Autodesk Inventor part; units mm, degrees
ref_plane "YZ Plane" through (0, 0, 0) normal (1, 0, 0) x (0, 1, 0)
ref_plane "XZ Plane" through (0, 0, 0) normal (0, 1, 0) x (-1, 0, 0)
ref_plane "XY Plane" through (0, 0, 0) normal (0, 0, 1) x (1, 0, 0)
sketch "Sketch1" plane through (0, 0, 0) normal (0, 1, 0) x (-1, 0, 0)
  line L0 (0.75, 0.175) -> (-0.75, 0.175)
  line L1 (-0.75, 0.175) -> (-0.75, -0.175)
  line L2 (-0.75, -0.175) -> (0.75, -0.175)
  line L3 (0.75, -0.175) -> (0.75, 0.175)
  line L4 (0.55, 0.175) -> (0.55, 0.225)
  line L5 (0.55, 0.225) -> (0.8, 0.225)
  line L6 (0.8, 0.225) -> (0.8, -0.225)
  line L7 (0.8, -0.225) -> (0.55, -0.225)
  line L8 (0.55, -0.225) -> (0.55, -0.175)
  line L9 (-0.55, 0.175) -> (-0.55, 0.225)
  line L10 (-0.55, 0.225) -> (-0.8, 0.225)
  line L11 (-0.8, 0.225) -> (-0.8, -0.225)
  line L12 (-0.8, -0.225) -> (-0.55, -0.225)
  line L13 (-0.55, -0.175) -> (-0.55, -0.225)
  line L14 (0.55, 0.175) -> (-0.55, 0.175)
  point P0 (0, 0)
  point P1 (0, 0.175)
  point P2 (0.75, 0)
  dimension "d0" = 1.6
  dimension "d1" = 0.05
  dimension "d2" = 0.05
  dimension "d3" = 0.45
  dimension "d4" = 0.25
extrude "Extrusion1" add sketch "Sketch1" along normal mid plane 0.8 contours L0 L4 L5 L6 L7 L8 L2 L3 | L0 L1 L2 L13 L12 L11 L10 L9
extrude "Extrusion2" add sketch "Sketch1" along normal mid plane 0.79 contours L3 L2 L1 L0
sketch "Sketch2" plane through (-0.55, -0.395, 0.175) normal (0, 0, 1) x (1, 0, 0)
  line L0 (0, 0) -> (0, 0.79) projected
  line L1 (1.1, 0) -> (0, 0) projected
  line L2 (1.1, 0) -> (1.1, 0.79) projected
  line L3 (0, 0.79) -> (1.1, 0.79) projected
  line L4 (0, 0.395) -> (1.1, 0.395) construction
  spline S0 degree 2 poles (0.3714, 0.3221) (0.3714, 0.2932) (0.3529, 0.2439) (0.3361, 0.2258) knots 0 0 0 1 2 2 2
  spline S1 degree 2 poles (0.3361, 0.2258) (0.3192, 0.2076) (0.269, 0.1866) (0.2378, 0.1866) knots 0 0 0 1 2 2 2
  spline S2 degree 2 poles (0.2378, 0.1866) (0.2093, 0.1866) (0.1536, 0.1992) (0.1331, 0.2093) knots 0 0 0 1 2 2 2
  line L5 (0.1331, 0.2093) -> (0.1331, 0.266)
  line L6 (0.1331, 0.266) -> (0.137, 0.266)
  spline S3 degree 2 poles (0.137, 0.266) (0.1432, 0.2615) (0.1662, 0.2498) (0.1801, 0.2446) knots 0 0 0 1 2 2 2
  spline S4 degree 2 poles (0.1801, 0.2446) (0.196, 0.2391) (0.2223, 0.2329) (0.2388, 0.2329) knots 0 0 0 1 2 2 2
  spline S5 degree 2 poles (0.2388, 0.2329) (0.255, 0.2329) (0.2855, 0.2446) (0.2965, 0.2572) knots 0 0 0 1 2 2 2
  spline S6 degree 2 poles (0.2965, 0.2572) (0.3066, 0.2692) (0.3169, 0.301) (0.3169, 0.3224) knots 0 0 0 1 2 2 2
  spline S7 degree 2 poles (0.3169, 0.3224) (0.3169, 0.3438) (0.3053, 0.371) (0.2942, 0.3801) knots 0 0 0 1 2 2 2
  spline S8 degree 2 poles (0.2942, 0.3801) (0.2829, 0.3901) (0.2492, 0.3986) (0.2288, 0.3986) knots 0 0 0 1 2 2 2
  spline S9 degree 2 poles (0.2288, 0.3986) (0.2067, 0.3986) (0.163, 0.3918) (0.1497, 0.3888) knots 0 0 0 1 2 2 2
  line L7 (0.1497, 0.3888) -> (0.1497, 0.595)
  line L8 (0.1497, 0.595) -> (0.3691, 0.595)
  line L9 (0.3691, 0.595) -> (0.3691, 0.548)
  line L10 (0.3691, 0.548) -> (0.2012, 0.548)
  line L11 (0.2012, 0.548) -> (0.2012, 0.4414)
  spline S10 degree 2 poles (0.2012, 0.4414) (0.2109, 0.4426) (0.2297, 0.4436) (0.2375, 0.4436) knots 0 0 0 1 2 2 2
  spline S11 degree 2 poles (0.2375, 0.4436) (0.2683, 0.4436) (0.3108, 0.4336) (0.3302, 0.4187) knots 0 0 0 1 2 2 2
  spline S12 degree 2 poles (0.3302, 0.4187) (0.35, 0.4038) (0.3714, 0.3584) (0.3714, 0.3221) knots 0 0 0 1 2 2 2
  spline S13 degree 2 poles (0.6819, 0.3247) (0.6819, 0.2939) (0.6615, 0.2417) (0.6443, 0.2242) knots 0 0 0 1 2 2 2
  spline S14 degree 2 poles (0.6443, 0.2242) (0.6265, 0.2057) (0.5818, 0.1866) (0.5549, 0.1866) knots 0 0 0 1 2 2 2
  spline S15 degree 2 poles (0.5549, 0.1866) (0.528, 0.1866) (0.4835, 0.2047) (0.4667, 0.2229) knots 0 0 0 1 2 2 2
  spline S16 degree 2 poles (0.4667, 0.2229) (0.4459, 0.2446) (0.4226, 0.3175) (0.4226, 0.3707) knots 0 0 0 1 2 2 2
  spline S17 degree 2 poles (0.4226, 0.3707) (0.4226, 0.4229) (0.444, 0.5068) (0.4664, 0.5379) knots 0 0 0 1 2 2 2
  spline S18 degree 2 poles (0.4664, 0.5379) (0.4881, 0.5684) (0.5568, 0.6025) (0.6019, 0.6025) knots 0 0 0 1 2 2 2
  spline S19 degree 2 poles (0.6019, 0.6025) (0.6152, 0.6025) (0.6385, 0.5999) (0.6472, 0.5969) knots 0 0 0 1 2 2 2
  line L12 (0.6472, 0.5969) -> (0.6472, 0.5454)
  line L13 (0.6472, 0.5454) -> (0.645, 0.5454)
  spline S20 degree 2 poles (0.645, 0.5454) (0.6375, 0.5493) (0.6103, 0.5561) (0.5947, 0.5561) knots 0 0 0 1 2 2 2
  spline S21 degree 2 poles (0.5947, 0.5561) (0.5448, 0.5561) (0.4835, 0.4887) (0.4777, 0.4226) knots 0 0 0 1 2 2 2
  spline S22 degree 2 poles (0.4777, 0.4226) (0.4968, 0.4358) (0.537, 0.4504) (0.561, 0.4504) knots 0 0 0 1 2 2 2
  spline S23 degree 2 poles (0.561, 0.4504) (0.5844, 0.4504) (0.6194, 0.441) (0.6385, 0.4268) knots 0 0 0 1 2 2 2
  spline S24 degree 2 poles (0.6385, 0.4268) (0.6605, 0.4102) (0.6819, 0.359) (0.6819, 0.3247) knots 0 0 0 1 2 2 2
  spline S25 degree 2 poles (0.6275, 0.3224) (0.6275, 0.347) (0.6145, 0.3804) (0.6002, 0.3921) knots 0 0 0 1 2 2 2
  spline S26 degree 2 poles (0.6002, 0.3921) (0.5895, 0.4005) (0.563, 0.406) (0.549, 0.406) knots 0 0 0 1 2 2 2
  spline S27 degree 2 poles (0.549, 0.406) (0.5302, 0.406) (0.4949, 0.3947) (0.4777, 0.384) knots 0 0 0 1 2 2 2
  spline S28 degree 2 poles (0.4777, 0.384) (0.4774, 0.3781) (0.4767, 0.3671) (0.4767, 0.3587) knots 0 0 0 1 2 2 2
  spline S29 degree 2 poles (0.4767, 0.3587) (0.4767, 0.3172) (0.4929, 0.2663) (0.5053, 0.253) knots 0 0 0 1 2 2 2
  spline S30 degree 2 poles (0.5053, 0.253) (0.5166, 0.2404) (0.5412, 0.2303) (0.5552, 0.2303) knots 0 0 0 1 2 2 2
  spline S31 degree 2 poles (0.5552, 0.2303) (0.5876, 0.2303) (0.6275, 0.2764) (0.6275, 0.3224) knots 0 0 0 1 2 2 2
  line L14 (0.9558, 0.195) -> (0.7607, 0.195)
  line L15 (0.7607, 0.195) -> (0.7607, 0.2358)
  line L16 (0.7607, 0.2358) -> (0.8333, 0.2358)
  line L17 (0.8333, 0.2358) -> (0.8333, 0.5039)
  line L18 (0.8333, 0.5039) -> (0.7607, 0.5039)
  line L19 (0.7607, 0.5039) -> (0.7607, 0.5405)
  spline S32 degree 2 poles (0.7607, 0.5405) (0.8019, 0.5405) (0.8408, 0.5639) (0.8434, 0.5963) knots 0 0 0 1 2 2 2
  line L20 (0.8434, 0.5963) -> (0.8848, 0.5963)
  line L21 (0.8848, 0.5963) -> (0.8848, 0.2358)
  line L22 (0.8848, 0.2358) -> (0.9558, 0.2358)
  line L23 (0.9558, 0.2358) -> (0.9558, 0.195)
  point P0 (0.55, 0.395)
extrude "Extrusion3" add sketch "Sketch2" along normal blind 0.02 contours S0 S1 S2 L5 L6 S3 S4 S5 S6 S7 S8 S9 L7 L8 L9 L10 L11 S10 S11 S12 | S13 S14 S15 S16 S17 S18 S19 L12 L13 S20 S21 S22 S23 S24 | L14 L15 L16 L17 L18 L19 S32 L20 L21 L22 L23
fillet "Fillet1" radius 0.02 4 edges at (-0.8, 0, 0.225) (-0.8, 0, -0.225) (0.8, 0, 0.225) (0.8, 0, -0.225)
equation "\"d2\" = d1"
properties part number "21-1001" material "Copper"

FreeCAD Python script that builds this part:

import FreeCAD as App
import Part
import Sketcher
from FreeCAD import Vector
Q = App.Units.Quantity


def edges_at(feature, points):
    """Names of the edges that pass closest to the given points."""
    edges = feature.Shape.Edges
    near = lambda p: min(range(len(edges)), key=lambda i: edges[i].distToShape(Part.Vertex(*p))[0])
    return sorted({f"Edge{near(p) + 1}" for p in points})

doc = App.newDocument("Part")
body = doc.addObject("PartDesign::Body", "Body")
body.AllowCompound = True

sketch1 = body.newObject("Sketcher::SketchObject", "Sketch")
sketch1.AttachmentSupport = (doc.getObject("XZ_Plane"), [""])
sketch1.MapMode = "FlatFace"
sketch1.addGeometry([
    Part.LineSegment(Vector(-0.55, 0.175, 0), Vector(-0.75, 0.175, 0)),
    Part.LineSegment(Vector(-0.75, 0.175, 0), Vector(-0.75, -0.175, 0)),
    Part.LineSegment(Vector(-0.75, -0.175, 0), Vector(-0.55, -0.175, 0)),
    Part.LineSegment(Vector(-0.55, -0.175, 0), Vector(-0.55, -0.225, 0)),
    Part.LineSegment(Vector(-0.55, -0.225, 0), Vector(-0.8, -0.225, 0)),
    Part.LineSegment(Vector(-0.8, -0.225, 0), Vector(-0.8, 0.225, 0)),
    Part.LineSegment(Vector(-0.8, 0.225, 0), Vector(-0.55, 0.225, 0)),
    Part.LineSegment(Vector(-0.55, 0.225, 0), Vector(-0.55, 0.175, 0)),
    Part.LineSegment(Vector(0.75, 0.175, 0), Vector(0.55, 0.175, 0)),
    Part.LineSegment(Vector(0.55, 0.175, 0), Vector(0.55, 0.225, 0)),
    Part.LineSegment(Vector(0.55, 0.225, 0), Vector(0.8, 0.225, 0)),
    Part.LineSegment(Vector(0.8, 0.225, 0), Vector(0.8, -0.225, 0)),
    Part.LineSegment(Vector(0.8, -0.225, 0), Vector(0.55, -0.225, 0)),
    Part.LineSegment(Vector(0.55, -0.225, 0), Vector(0.55, -0.175, 0)),
    Part.LineSegment(Vector(0.55, -0.175, 0), Vector(0.75, -0.175, 0)),
    Part.LineSegment(Vector(0.75, -0.175, 0), Vector(0.75, 0.175, 0)),
], False)
sketch1.addConstraint([
    Sketcher.Constraint("Coincident", 0, 2, 1, 1),
    Sketcher.Constraint("Coincident", 1, 2, 2, 1),
    Sketcher.Constraint("Coincident", 2, 2, 3, 1),
    Sketcher.Constraint("Coincident", 3, 2, 4, 1),
    Sketcher.Constraint("Coincident", 4, 2, 5, 1),
    Sketcher.Constraint("Coincident", 5, 2, 6, 1),
    Sketcher.Constraint("Coincident", 6, 2, 7, 1),
    Sketcher.Constraint("Coincident", 7, 2, 0, 1),
    Sketcher.Constraint("Coincident", 8, 2, 9, 1),
    Sketcher.Constraint("Coincident", 9, 2, 10, 1),
    Sketcher.Constraint("Coincident", 10, 2, 11, 1),
    Sketcher.Constraint("Coincident", 11, 2, 12, 1),
    Sketcher.Constraint("Coincident", 12, 2, 13, 1),
    Sketcher.Constraint("Coincident", 13, 2, 14, 1),
    Sketcher.Constraint("Coincident", 14, 2, 15, 1),
    Sketcher.Constraint("Coincident", 15, 2, 8, 1),
    Sketcher.Constraint("Horizontal", 0),
    Sketcher.Constraint("Vertical", 1),
    Sketcher.Constraint("Horizontal", 2),
    Sketcher.Constraint("Vertical", 3),
    Sketcher.Constraint("Horizontal", 4),
    Sketcher.Constraint("Vertical", 5),
    Sketcher.Constraint("Horizontal", 6),
    Sketcher.Constraint("Vertical", 7),
    Sketcher.Constraint("Horizontal", 8),
    Sketcher.Constraint("Vertical", 9),
    Sketcher.Constraint("Horizontal", 10),
    Sketcher.Constraint("Vertical", 11),
    Sketcher.Constraint("Horizontal", 12),
    Sketcher.Constraint("Vertical", 13),
    Sketcher.Constraint("Horizontal", 14),
    Sketcher.Constraint("Vertical", 15),
    Sketcher.Constraint("Symmetric", 2, 2, 8, 2, -1, 1),
    Sketcher.Constraint("Symmetric", 4, 2, 10, 2, -1, 1),
    Sketcher.Constraint("Symmetric", 6, 2, 12, 2, -1, 1),
    Sketcher.Constraint("Symmetric", 0, 2, 14, 2, -1, 1),
    Sketcher.Constraint("Symmetric", 7, 2, 8, 2, -2),
    Sketcher.Constraint("Horizontal", 6, 2, 9, 2),
    Sketcher.Constraint("DistanceX", 4, 2, 4, 1, Q("0.25 mm")),
    Sketcher.Constraint("DistanceY", 3, 2, 3, 1, Q("0.05 mm")),
    Sketcher.Constraint("DistanceY", 5, 1, 5, 2, Q("0.45 mm")),
    Sketcher.Constraint("DistanceX", 4, 2, 1, 2, Q("0.05 mm")),
    Sketcher.Constraint("DistanceX", 4, 2, -1, 1, Q("0.8 mm")),
])
pad1 = body.newObject("PartDesign::Pad", "Pad")
pad1.Profile = sketch1
pad1.Length = 0.8
pad1.Midplane = True

sketch2 = body.newObject("Sketcher::SketchObject", "Sketch001")
sketch2.AttachmentSupport = (doc.getObject("XZ_Plane"), [""])
sketch2.MapMode = "FlatFace"
sketch2.addGeometry([
    Part.LineSegment(Vector(-0.75, -0.175, 0), Vector(-0.75, 0.175, 0)),
    Part.LineSegment(Vector(-0.75, 0.175, 0), Vector(0.75, 0.175, 0)),
    Part.LineSegment(Vector(0.75, 0.175, 0), Vector(0.75, -0.175, 0)),
    Part.LineSegment(Vector(0.75, -0.175, 0), Vector(-0.75, -0.175, 0)),
], False)
sketch2.addConstraint([
    Sketcher.Constraint("Coincident", 0, 2, 1, 1),
    Sketcher.Constraint("Coincident", 1, 2, 2, 1),
    Sketcher.Constraint("Coincident", 2, 2, 3, 1),
    Sketcher.Constraint("Coincident", 3, 2, 0, 1),
    Sketcher.Constraint("Vertical", 0),
    Sketcher.Constraint("Horizontal", 1),
    Sketcher.Constraint("Vertical", 2),
    Sketcher.Constraint("Horizontal", 3),
    Sketcher.Constraint("Symmetric", 0, 2, 2, 2, -1, 1),
    Sketcher.Constraint("DistanceX", 1, 1, 1, 2, Q("1.5 mm")),
    Sketcher.Constraint("DistanceY", 0, 1, 0, 2, Q("0.35 mm")),
])
pad2 = body.newObject("PartDesign::Pad", "Pad001")
pad2.Profile = sketch2
pad2.Length = 0.79
pad2.Midplane = True

sketch3 = body.newObject("Sketcher::SketchObject", "Sketch002")
sketch3.AttachmentSupport = (doc.getObject("XY_Plane"), [""])
sketch3.MapMode = "FlatFace"
sketch3.AttachmentOffset = App.Placement(Vector(0, 0, 0.175), App.Rotation())
sketch3.addGeometry([
    Part.BSplineCurve([Vector(-0.1786, -0.0729, 0), Vector(-0.1786, -0.1018, 0), Vector(-0.1971, -0.1511, 0), Vector(-0.2139, -0.1692, 0)], [3, 1, 3], [0, 1, 2], False, 2, [1, 1, 1, 1], False),
    Part.BSplineCurve([Vector(-0.2198, 0.0237, 0), Vector(-0.2, 0.0088, 0), Vector(-0.1786, -0.0366, 0), Vector(-0.1786, -0.0729, 0)], [3, 1, 3], [0, 1, 2], False, 2, [1, 1, 1, 1], False),
    Part.BSplineCurve([Vector(-0.3125, 0.0486, 0), Vector(-0.2817, 0.0486, 0), Vector(-0.2392, 0.0386, 0), Vector(-0.2198, 0.0237, 0)], [3, 1, 3], [0, 1, 2], False, 2, [1, 1, 1, 1], False),
    Part.BSplineCurve([Vector(-0.3488, 0.0464, 0), Vector(-0.3391, 0.0476, 0), Vector(-0.3203, 0.0486, 0), Vector(-0.3125, 0.0486, 0)], [3, 1, 3], [0, 1, 2], False, 2, [1, 1, 1, 1], False),
    Part.LineSegment(Vector(-0.3488, 0.0464, 0), Vector(-0.3488, 0.153, 0)),
    Part.LineSegment(Vector(-0.3488, 0.153, 0), Vector(-0.1809, 0.153, 0)),
    Part.LineSegment(Vector(-0.1809, 0.153, 0), Vector(-0.1809, 0.2, 0)),
    Part.LineSegment(Vector(-0.1809, 0.2, 0), Vector(-0.4003, 0.2, 0)),
    Part.LineSegment(Vector(-0.4003, 0.2, 0), Vector(-0.4003, -0.0062, 0)),
    Part.BSplineCurve([Vector(-0.3212, 0.0036, 0), Vector(-0.3433, 0.0036, 0), Vector(-0.387, -0.0032, 0), Vector(-0.4003, -0.0062, 0)], [3, 1, 3], [0, 1, 2], False, 2, [1, 1, 1, 1], False),
    Part.BSplineCurve([Vector(-0.2558, -0.0149, 0), Vector(-0.2671, -0.0049, 0), Vector(-0.3008, 0.0036, 0), Vector(-0.3212, 0.0036, 0)], [3, 1, 3], [0, 1, 2], False, 2, [1, 1, 1, 1], False),
    Part.BSplineCurve([Vector(-0.2331, -0.0726, 0), Vector(-0.2331, -0.0512, 0), Vector(-0.2447, -0.024, 0), Vector(-0.2558, -0.0149, 0)], [3, 1, 3], [0, 1, 2], False, 2, [1, 1, 1, 1], False),
    Part.BSplineCurve([Vector(-0.2535, -0.1378, 0), Vector(-0.2434, -0.1258, 0), Vector(-0.2331, -0.094, 0), Vector(-0.2331, -0.0726, 0)], [3, 1, 3], [0, 1, 2], False, 2, [1, 1, 1, 1], False),
    Part.BSplineCurve([Vector(-0.3112, -0.1621, 0), Vector(-0.295, -0.1621, 0), Vector(-0.2645, -0.1504, 0), Vector(-0.2535, -0.1378, 0)], [3, 1, 3], [0, 1, 2], False, 2, [1, 1, 1, 1], False),
    Part.BSplineCurve([Vector(-0.3699, -0.1504, 0), Vector(-0.354, -0.1559, 0), Vector(-0.3277, -0.1621, 0), Vector(-0.3112, -0.1621, 0)], [3, 1, 3], [0, 1, 2], False, 2, [1, 1, 1, 1], False),
    Part.BSplineCurve([Vector(-0.413, -0.129, 0), Vector(-0.4068, -0.1335, 0), Vector(-0.3838, -0.1452, 0), Vector(-0.3699, -0.1504, 0)], [3, 1, 3], [0, 1, 2], False, 2, [1, 1, 1, 1], False),
    Part.LineSegment(Vector(-0.413, -0.129, 0), Vector(-0.4169, -0.129, 0)),
    Part.LineSegment(Vector(-0.4169, -0.129, 0), Vector(-0.4169, -0.1857, 0)),
    Part.BSplineCurve([Vector(-0.3122, -0.2084, 0), Vector(-0.3407, -0.2084, 0), Vector(-0.3964, -0.1958, 0), Vector(-0.4169, -0.1857, 0)], [3, 1, 3], [0, 1, 2], False, 2, [1, 1, 1, 1], False),
    Part.BSplineCurve([Vector(-0.2139, -0.1692, 0), Vector(-0.2308, -0.1874, 0), Vector(-0.281, -0.2084, 0), Vector(-0.3122, -0.2084, 0)], [3, 1, 3], [0, 1, 2], False, 2, [1, 1, 1, 1], False),
    Part.BSplineCurve([Vector(0.1319, -0.0703, 0), Vector(0.1319, -0.1011, 0), Vector(0.1115, -0.1533, 0), Vector(0.0943, -0.1708, 0)], [3, 1, 3], [0, 1, 2], False, 2, [1, 1, 1, 1], False),
    Part.BSplineCurve([Vector(0.0885, 0.0318, 0), Vector(0.1105, 0.0152, 0), Vector(0.1319, -0.036, 0), Vector(0.1319, -0.0703, 0)], [3, 1, 3], [0, 1, 2], False, 2, [1, 1, 1, 1], False),
    Part.BSplineCurve([Vector(0.011, 0.0554, 0), Vector(0.0344, 0.0554, 0), Vector(0.0694, 0.046, 0), Vector(0.0885, 0.0318, 0)], [3, 1, 3], [0, 1, 2], False, 2, [1, 1, 1, 1], False),
    Part.BSplineCurve([Vector(-0.0723, 0.0276, 0), Vector(-0.0532, 0.0408, 0), Vector(-0.013, 0.0554, 0), Vector(0.011, 0.0554, 0)], [3, 1, 3], [0, 1, 2], False, 2, [1, 1, 1, 1], False),
    Part.BSplineCurve([Vector(0.0447, 0.1611, 0), Vector(-0.0052, 0.1611, 0), Vector(-0.0665, 0.0937, 0), Vector(-0.0723, 0.0276, 0)], [3, 1, 3], [0, 1, 2], False, 2, [1, 1, 1, 1], False),
    Part.BSplineCurve([Vector(0.095, 0.1504, 0), Vector(0.0875, 0.1543, 0), Vector(0.0603, 0.1611, 0), Vector(0.0447, 0.1611, 0)], [3, 1, 3], [0, 1, 2], False, 2, [1, 1, 1, 1], False),
    Part.LineSegment(Vector(0.095, 0.1504, 0), Vector(0.0972, 0.1504, 0)),
    Part.LineSegment(Vector(0.0972, 0.1504, 0), Vector(0.0972, 0.2019, 0)),
    Part.BSplineCurve([Vector(0.0519, 0.2075, 0), Vector(0.0652, 0.2075, 0), Vector(0.0885, 0.2049, 0), Vector(0.0972, 0.2019, 0)], [3, 1, 3], [0, 1, 2], False, 2, [1, 1, 1, 1], False),
    Part.BSplineCurve([Vector(-0.0836, 0.1429, 0), Vector(-0.0619, 0.1734, 0), Vector(0.0068, 0.2075, 0), Vector(0.0519, 0.2075, 0)], [3, 1, 3], [0, 1, 2], False, 2, [1, 1, 1, 1], False),
    Part.BSplineCurve([Vector(-0.1274, -0.0243, 0), Vector(-0.1274, 0.0279, 0), Vector(-0.106, 0.1118, 0), Vector(-0.0836, 0.1429, 0)], [3, 1, 3], [0, 1, 2], False, 2, [1, 1, 1, 1], False),
    Part.BSplineCurve([Vector(-0.0833, -0.1721, 0), Vector(-0.1041, -0.1504, 0), Vector(-0.1274, -0.0775, 0), Vector(-0.1274, -0.0243, 0)], [3, 1, 3], [0, 1, 2], False, 2, [1, 1, 1, 1], False),
    Part.BSplineCurve([Vector(0.0049, -0.2084, 0), Vector(-0.022, -0.2084, 0), Vector(-0.0665, -0.1903, 0), Vector(-0.0833, -0.1721, 0)], [3, 1, 3], [0, 1, 2], False, 2, [1, 1, 1, 1], False),
    Part.BSplineCurve([Vector(0.0943, -0.1708, 0), Vector(0.0765, -0.1893, 0), Vector(0.0318, -0.2084, 0), Vector(0.0049, -0.2084, 0)], [3, 1, 3], [0, 1, 2], False, 2, [1, 1, 1, 1], False),
    Part.BSplineCurve([Vector(0.0775, -0.0726, 0), Vector(0.0775, -0.048, 0), Vector(0.0645, -0.0146, 0), Vector(0.0502, -0.0029, 0)], [3, 1, 3], [0, 1, 2], False, 2, [1, 1, 1, 1], False),
    Part.BSplineCurve([Vector(0.0052, -0.1647, 0), Vector(0.0376, -0.1647, 0), Vector(0.0775, -0.1186, 0), Vector(0.0775, -0.0726, 0)], [3, 1, 3], [0, 1, 2], False, 2, [1, 1, 1, 1], False),
    Part.BSplineCurve([Vector(-0.0447, -0.142, 0), Vector(-0.0334, -0.1546, 0), Vector(-0.0088, -0.1647, 0), Vector(0.0052, -0.1647, 0)], [3, 1, 3], [0, 1, 2], False, 2, [1, 1, 1, 1], False),
    Part.BSplineCurve([Vector(-0.0733, -0.0363, 0), Vector(-0.0733, -0.0778, 0), Vector(-0.0571, -0.1287, 0), Vector(-0.0447, -0.142, 0)], [3, 1, 3], [0, 1, 2], False, 2, [1, 1, 1, 1], False),
    Part.BSplineCurve([Vector(-0.0723, -0.011, 0), Vector(-0.0726, -0.0169, 0), Vector(-0.0733, -0.0279, 0), Vector(-0.0733, -0.0363, 0)], [3, 1, 3], [0, 1, 2], False, 2, [1, 1, 1, 1], False),
    Part.BSplineCurve([Vector(-0.001, 0.011, 0), Vector(-0.0198, 0.011, 0), Vector(-0.0551, -0.0003, 0), Vector(-0.0723, -0.011, 0)], [3, 1, 3], [0, 1, 2], False, 2, [1, 1, 1, 1], False),
    Part.BSplineCurve([Vector(0.0502, -0.0029, 0), Vector(0.0395, 0.0055, 0), Vector(0.013, 0.011, 0), Vector(-0.001, 0.011, 0)], [3, 1, 3], [0, 1, 2], False, 2, [1, 1, 1, 1], False),
    Part.LineSegment(Vector(0.2107, -0.2, 0), Vector(0.4058, -0.2, 0)),
    Part.LineSegment(Vector(0.4058, -0.2, 0), Vector(0.4058, -0.1592, 0)),
    Part.LineSegment(Vector(0.4058, -0.1592, 0), Vector(0.3348, -0.1592, 0)),
    Part.LineSegment(Vector(0.3348, -0.1592, 0), Vector(0.3348, 0.2013, 0)),
    Part.LineSegment(Vector(0.3348, 0.2013, 0), Vector(0.2934, 0.2013, 0)),
    Part.BSplineCurve([Vector(0.2107, 0.1455, 0), Vector(0.2519, 0.1455, 0), Vector(0.2908, 0.1689, 0), Vector(0.2934, 0.2013, 0)], [3, 1, 3], [0, 1, 2], False, 2, [1, 1, 1, 1], False),
    Part.LineSegment(Vector(0.2107, 0.1455, 0), Vector(0.2107, 0.1089, 0)),
    Part.LineSegment(Vector(0.2107, 0.1089, 0), Vector(0.2833, 0.1089, 0)),
    Part.LineSegment(Vector(0.2833, 0.1089, 0), Vector(0.2833, -0.1592, 0)),
    Part.LineSegment(Vector(0.2833, -0.1592, 0), Vector(0.2107, -0.1592, 0)),
    Part.LineSegment(Vector(0.2107, -0.1592, 0), Vector(0.2107, -0.2, 0)),
], False)
sketch3.addConstraint([
    Sketcher.Constraint("Block", 0),
    Sketcher.Constraint("Block", 1),
    Sketcher.Constraint("Block", 2),
    Sketcher.Constraint("Block", 3),
    Sketcher.Constraint("Block", 9),
    Sketcher.Constraint("Block", 10),
    Sketcher.Constraint("Block", 11),
    Sketcher.Constraint("Block", 12),
    Sketcher.Constraint("Block", 13),
    Sketcher.Constraint("Block", 14),
    Sketcher.Constraint("Block", 15),
    Sketcher.Constraint("Block", 18),
    Sketcher.Constraint("Block", 19),
    Sketcher.Constraint("Block", 20),
    Sketcher.Constraint("Block", 21),
    Sketcher.Constraint("Block", 22),
    Sketcher.Constraint("Block", 23),
    Sketcher.Constraint("Block", 24),
    Sketcher.Constraint("Block", 25),
    Sketcher.Constraint("Block", 28),
    Sketcher.Constraint("Block", 29),
    Sketcher.Constraint("Block", 30),
    Sketcher.Constraint("Block", 31),
    Sketcher.Constraint("Block", 32),
    Sketcher.Constraint("Block", 33),
    Sketcher.Constraint("Block", 34),
    Sketcher.Constraint("Block", 35),
    Sketcher.Constraint("Block", 36),
    Sketcher.Constraint("Block", 37),
    Sketcher.Constraint("Block", 38),
    Sketcher.Constraint("Block", 39),
    Sketcher.Constraint("Block", 40),
    Sketcher.Constraint("Block", 46),
    Sketcher.Constraint("Coincident", 3, 1, 4, 1),
    Sketcher.Constraint("Coincident", 4, 2, 5, 1),
    Sketcher.Constraint("Coincident", 5, 2, 6, 1),
    Sketcher.Constraint("Coincident", 6, 2, 7, 1),
    Sketcher.Constraint("Coincident", 7, 2, 8, 1),
    Sketcher.Constraint("Coincident", 8, 2, 9, 2),
    Sketcher.Constraint("Coincident", 15, 1, 16, 1),
    Sketcher.Constraint("Coincident", 16, 2, 17, 1),
    Sketcher.Constraint("Coincident", 17, 2, 18, 2),
    Sketcher.Constraint("Coincident", 25, 1, 26, 1),
    Sketcher.Constraint("Coincident", 26, 2, 27, 1),
    Sketcher.Constraint("Coincident", 27, 2, 28, 2),
    Sketcher.Constraint("Coincident", 41, 2, 42, 1),
    Sketcher.Constraint("Coincident", 42, 2, 43, 1),
    Sketcher.Constraint("Coincident", 43, 2, 44, 1),
    Sketcher.Constraint("Coincident", 44, 2, 45, 1),
    Sketcher.Constraint("Coincident", 45, 2, 46, 2),
    Sketcher.Constraint("Coincident", 46, 1, 47, 1),
    Sketcher.Constraint("Coincident", 47, 2, 48, 1),
    Sketcher.Constraint("Coincident", 48, 2, 49, 1),
    Sketcher.Constraint("Coincident", 49, 2, 50, 1),
    Sketcher.Constraint("Coincident", 50, 2, 51, 1),
    Sketcher.Constraint("Coincident", 51, 2, 41, 1),
    Sketcher.Constraint("Vertical", 4),
    Sketcher.Constraint("Horizontal", 5),
    Sketcher.Constraint("Vertical", 6),
    Sketcher.Constraint("Horizontal", 7),
    Sketcher.Constraint("Vertical", 8),
    Sketcher.Constraint("Horizontal", 16),
    Sketcher.Constraint("Vertical", 17),
    Sketcher.Constraint("Horizontal", 26),
    Sketcher.Constraint("Vertical", 27),
    Sketcher.Constraint("Horizontal", 41),
    Sketcher.Constraint("Vertical", 42),
    Sketcher.Constraint("Horizontal", 43),
    Sketcher.Constraint("Vertical", 44),
    Sketcher.Constraint("Horizontal", 45),
    Sketcher.Constraint("Vertical", 47),
    Sketcher.Constraint("Horizontal", 48),
    Sketcher.Constraint("Vertical", 49),
    Sketcher.Constraint("Horizontal", 50),
    Sketcher.Constraint("Vertical", 51),
    Sketcher.Constraint("Horizontal", 43, 2, 49, 2),
    Sketcher.Constraint("Vertical", 47, 2, 50, 2),
    Sketcher.Constraint("DistanceY", -1, 1, 6, 2, Q("0.2 mm")),
    Sketcher.Constraint("DistanceY", 41, 2, -1, 1, Q("0.2 mm")),
    Sketcher.Constraint("DistanceX", 5, 1, 5, 2, Q("0.168 mm")),
    Sketcher.Constraint("DistanceX", 41, 1, 41, 2, Q("0.195 mm")),
    Sketcher.Constraint("DistanceX", 43, 2, 43, 1, Q("0.071 mm")),
    Sketcher.Constraint("DistanceY", 6, 1, 6, 2, Q("0.047 mm")),
    Sketcher.Constraint("DistanceY", 49, 2, 49, 1, Q("0.268 mm")),
    Sketcher.Constraint("DistanceX", 48, 2, 45, 2, Q("0.01 mm")),
    Sketcher.Constraint("DistanceY", 42, 1, 42, 2, Q("0.0408 mm")),
])
pad3 = body.newObject("PartDesign::Pad", "Pad002")
pad3.Profile = sketch3
pad3.Length = 0.02
doc.recompute()

fillet = body.newObject("PartDesign::Fillet", "Fillet")
fillet.Base = (pad3, edges_at(pad3, [
    (-0.8, 0, 0.225),
    (-0.8, 0, -0.225),
    (0.8, 0, 0.225),
    (0.8, 0, -0.225),
]))
fillet.Radius = 0.02

doc.recompute()
